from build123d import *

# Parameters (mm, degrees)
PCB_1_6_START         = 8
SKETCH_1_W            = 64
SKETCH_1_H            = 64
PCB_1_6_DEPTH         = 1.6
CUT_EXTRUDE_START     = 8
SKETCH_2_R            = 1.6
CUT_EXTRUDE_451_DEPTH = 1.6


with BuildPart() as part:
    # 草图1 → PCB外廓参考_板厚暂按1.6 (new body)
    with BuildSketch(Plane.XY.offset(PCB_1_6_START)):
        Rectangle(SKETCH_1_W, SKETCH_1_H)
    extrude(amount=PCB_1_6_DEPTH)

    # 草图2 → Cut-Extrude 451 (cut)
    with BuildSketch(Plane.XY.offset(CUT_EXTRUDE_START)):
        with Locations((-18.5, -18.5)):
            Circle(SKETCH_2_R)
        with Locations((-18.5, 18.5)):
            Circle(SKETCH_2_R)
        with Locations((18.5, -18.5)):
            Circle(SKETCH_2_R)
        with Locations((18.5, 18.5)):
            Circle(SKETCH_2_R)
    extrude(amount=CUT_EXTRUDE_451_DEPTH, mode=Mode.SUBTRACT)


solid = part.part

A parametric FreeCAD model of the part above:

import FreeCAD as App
import Part
import Sketcher


def add_polygon(sketch, points):
    """Adds a closed chain of lines whose ends are joined by coincident constraints."""
    first, n = sketch.GeometryCount, len(points)
    for a, b in zip(points, points[1:] + points[:1]):
        sketch.addGeometry(Part.LineSegment(App.Vector(*a, 0), App.Vector(*b, 0)), False)
    for i in range(n):
        sketch.addConstraint(Sketcher.Constraint("Coincident", first + i, 2, first + (i + 1) % n, 1))

doc = App.newDocument("Part")
body = doc.addObject("PartDesign::Body", "Body")

sketch1 = body.newObject("Sketcher::SketchObject", "Sketch")
sketch1.AttachmentSupport = (doc.getObject("XY_Plane"), [""])
sketch1.MapMode = "FlatFace"
sketch1.AttachmentOffset = App.Placement(App.Vector(0, 0, 8), App.Rotation())
add_polygon(sketch1, [(-32, 32), (-32, -32), (32, -32), (32, 32)])
sketch1.addConstraint([
    Sketcher.Constraint("Vertical", 0),
    Sketcher.Constraint("Horizontal", 1),
    Sketcher.Constraint("Vertical", 2),
    Sketcher.Constraint("Horizontal", 3),
    Sketcher.Constraint("Symmetric", 0, 2, 2, 2, -1, 1),
    Sketcher.Constraint("Equal", 3, 0),
    Sketcher.Constraint("DistanceX", 1, 1, 1, 2, 64.0),
])
pad1 = body.newObject("PartDesign::Pad", "Pad")
pad1.Profile = sketch1
pad1.Length = 1.6

sketch2 = body.newObject("Sketcher::SketchObject", "Sketch001")
sketch2.AttachmentSupport = (doc.getObject("XY_Plane"), [""])
sketch2.MapMode = "FlatFace"
sketch2.AttachmentOffset = App.Placement(App.Vector(0, 0, 8), App.Rotation())
sketch2.addGeometry([
    Part.Circle(App.Vector(-18.5, -18.5, 0), App.Vector(0, 0, 1), 1.6),
    Part.Circle(App.Vector(-18.5, 18.5, 0), App.Vector(0, 0, 1), 1.6),
    Part.Circle(App.Vector(18.5, -18.5, 0), App.Vector(0, 0, 1), 1.6),
    Part.Circle(App.Vector(18.5, 18.5, 0), App.Vector(0, 0, 1), 1.6),
], False)
sketch2.addConstraint([
    Sketcher.Constraint("Equal", 0, 1),
    Sketcher.Constraint("Equal", 1, 2),
    Sketcher.Constraint("Equal", 2, 3),
    Sketcher.Constraint("Symmetric", 1, 3, 2, 3, -1, 1),
    Sketcher.Constraint("Symmetric", 0, 3, 3, 3, -1, 1),
    Sketcher.Constraint("Symmetric", 0, 3, 2, 3, -2),
    Sketcher.Constraint("Diameter", 0, 3.2),
    Sketcher.Constraint("DistanceY", 0, 3, 1, 3, 37.0),
    Sketcher.Constraint("DistanceX", 0, 3, 2, 3, 37.0),
])
pocket1 = body.newObject("PartDesign::Pocket", "Pocket")
pocket1.Profile = sketch2
pocket1.Length = 1.6
pocket1.Reversed = True

doc.recompute()
